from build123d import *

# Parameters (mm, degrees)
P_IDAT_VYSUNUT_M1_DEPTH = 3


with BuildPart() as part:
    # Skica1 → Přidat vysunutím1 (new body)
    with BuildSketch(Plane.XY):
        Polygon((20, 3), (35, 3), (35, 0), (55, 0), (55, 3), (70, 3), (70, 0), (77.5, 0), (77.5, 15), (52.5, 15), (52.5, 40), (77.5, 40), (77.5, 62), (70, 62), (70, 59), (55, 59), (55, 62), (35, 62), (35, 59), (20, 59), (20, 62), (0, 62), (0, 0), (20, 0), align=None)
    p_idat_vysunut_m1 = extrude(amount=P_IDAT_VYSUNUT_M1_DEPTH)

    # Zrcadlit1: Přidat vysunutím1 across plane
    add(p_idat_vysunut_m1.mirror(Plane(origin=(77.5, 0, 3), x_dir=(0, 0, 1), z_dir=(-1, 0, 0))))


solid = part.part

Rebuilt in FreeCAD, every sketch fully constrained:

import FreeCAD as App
import Part
import Sketcher

doc = App.newDocument("Part")
body = doc.addObject("PartDesign::Body", "Body")

# Sketch on XY plane
sketch1 = doc.addObject("Sketcher::SketchObject", "Sketch")
body.addObject(sketch1)
sketch1.AttachmentSupport = (doc.XY_Plane, [""])
sketch1.MapMode = "FlatFace"
sketch1.addGeometry(Part.LineSegment(App.Vector(20, 3, 0), App.Vector(35, 3, 0)), False)
sketch1.addGeometry(Part.LineSegment(App.Vector(35, 3, 0), App.Vector(35, 0, 0)), False)
sketch1.addGeometry(Part.LineSegment(App.Vector(35, 0, 0), App.Vector(55, 0, 0)), False)
sketch1.addGeometry(Part.LineSegment(App.Vector(55, 0, 0), App.Vector(55, 3, 0)), False)
sketch1.addGeometry(Part.LineSegment(App.Vector(55, 3, 0), App.Vector(70, 3, 0)), False)
sketch1.addGeometry(Part.LineSegment(App.Vector(70, 3, 0), App.Vector(70, 0, 0)), False)
sketch1.addGeometry(Part.LineSegment(App.Vector(70, 0, 0), App.Vector(77.5, 0, 0)), False)
sketch1.addGeometry(Part.LineSegment(App.Vector(77.5, 0, 0), App.Vector(77.5, 15, 0)), False)
sketch1.addGeometry(Part.LineSegment(App.Vector(77.5, 15, 0), App.Vector(52.5, 15, 0)), False)
sketch1.addGeometry(Part.LineSegment(App.Vector(52.5, 15, 0), App.Vector(52.5, 40, 0)), False)
sketch1.addGeometry(Part.LineSegment(App.Vector(52.5, 40, 0), App.Vector(77.5, 40, 0)), False)
sketch1.addGeometry(Part.LineSegment(App.Vector(77.5, 40, 0), App.Vector(77.5, 62, 0)), False)
sketch1.addGeometry(Part.LineSegment(App.Vector(77.5, 62, 0), App.Vector(70, 62, 0)), False)
sketch1.addGeometry(Part.LineSegment(App.Vector(70, 62, 0), App.Vector(70, 59, 0)), False)
sketch1.addGeometry(Part.LineSegment(App.Vector(70, 59, 0), App.Vector(55, 59, 0)), False)
sketch1.addGeometry(Part.LineSegment(App.Vector(55, 59, 0), App.Vector(55, 62, 0)), False)
sketch1.addGeometry(Part.LineSegment(App.Vector(55, 62, 0), App.Vector(35, 62, 0)), False)
sketch1.addGeometry(Part.LineSegment(App.Vector(35, 62, 0), App.Vector(35, 59, 0)), False)
sketch1.addGeometry(Part.LineSegment(App.Vector(35, 59, 0), App.Vector(20, 59, 0)), False)
sketch1.addGeometry(Part.LineSegment(App.Vector(20, 59, 0), App.Vector(20, 62, 0)), False)
sketch1.addGeometry(Part.LineSegment(App.Vector(20, 62, 0), App.Vector(0, 62, 0)), False)
sketch1.addGeometry(Part.LineSegment(App.Vector(0, 62, 0), App.Vector(0, 0, 0)), False)
sketch1.addGeometry(Part.LineSegment(App.Vector(0, 0, 0), App.Vector(20, 0, 0)), False)
sketch1.addGeometry(Part.LineSegment(App.Vector(20, 0, 0), App.Vector(20, 3, 0)), False)
sketch1.addConstraint(Sketcher.Constraint("Coincident", 0, 2, 1, 1))
sketch1.addConstraint(Sketcher.Constraint("Coincident", 1, 2, 2, 1))
sketch1.addConstraint(Sketcher.Constraint("Coincident", 2, 2, 3, 1))
sketch1.addConstraint(Sketcher.Constraint("Coincident", 3, 2, 4, 1))
sketch1.addConstraint(Sketcher.Constraint("Coincident", 4, 2, 5, 1))
sketch1.addConstraint(Sketcher.Constraint("Coincident", 5, 2, 6, 1))
sketch1.addConstraint(Sketcher.Constraint("Coincident", 6, 2, 7, 1))
sketch1.addConstraint(Sketcher.Constraint("Coincident", 7, 2, 8, 1))
sketch1.addConstraint(Sketcher.Constraint("Coincident", 8, 2, 9, 1))
sketch1.addConstraint(Sketcher.Constraint("Coincident", 9, 2, 10, 1))
sketch1.addConstraint(Sketcher.Constraint("Coincident", 10, 2, 11, 1))
sketch1.addConstraint(Sketcher.Constraint("Coincident", 11, 2, 12, 1))
sketch1.addConstraint(Sketcher.Constraint("Coincident", 12, 2, 13, 1))
sketch1.addConstraint(Sketcher.Constraint("Coincident", 13, 2, 14, 1))
sketch1.addConstraint(Sketcher.Constraint("Coincident", 14, 2, 15, 1))
sketch1.addConstraint(Sketcher.Constraint("Coincident", 15, 2, 16, 1))
sketch1.addConstraint(Sketcher.Constraint("Coincident", 16, 2, 17, 1))
sketch1.addConstraint(Sketcher.Constraint("Coincident", 17, 2, 18, 1))
sketch1.addConstraint(Sketcher.Constraint("Coincident", 18, 2, 19, 1))
sketch1.addConstraint(Sketcher.Constraint("Coincident", 19, 2, 20, 1))
sketch1.addConstraint(Sketcher.Constraint("Coincident", 20, 2, 21, 1))
sketch1.addConstraint(Sketcher.Constraint("Coincident", 21, 2, 22, 1))
sketch1.addConstraint(Sketcher.Constraint("Coincident", 22, 2, 23, 1))
sketch1.addConstraint(Sketcher.Constraint("Coincident", 23, 2, 0, 1))
sketch1.addConstraint(Sketcher.Constraint("Horizontal", 0))
sketch1.addConstraint(Sketcher.Constraint("Vertical", 1))
sketch1.addConstraint(Sketcher.Constraint("Horizontal", 2))
sketch1.addConstraint(Sketcher.Constraint("Vertical", 3))
sketch1.addConstraint(Sketcher.Constraint("Horizontal", 4))
sketch1.addConstraint(Sketcher.Constraint("Vertical", 5))
sketch1.addConstraint(Sketcher.Constraint("Horizontal", 6))
sketch1.addConstraint(Sketcher.Constraint("Vertical", 7))
sketch1.addConstraint(Sketcher.Constraint("Horizontal", 8))
sketch1.addConstraint(Sketcher.Constraint("Vertical", 9))
sketch1.addConstraint(Sketcher.Constraint("Horizontal", 10))
sketch1.addConstraint(Sketcher.Constraint("Vertical", 11))
sketch1.addConstraint(Sketcher.Constraint("Horizontal", 12))
sketch1.addConstraint(Sketcher.Constraint("Vertical", 13))
sketch1.addConstraint(Sketcher.Constraint("Horizontal", 14))
sketch1.addConstraint(Sketcher.Constraint("Vertical", 15))
sketch1.addConstraint(Sketcher.Constraint("Horizontal", 16))
sketch1.addConstraint(Sketcher.Constraint("Vertical", 17))
sketch1.addConstraint(Sketcher.Constraint("Horizontal", 18))
sketch1.addConstraint(Sketcher.Constraint("Vertical", 19))
sketch1.addConstraint(Sketcher.Constraint("Horizontal", 20))
sketch1.addConstraint(Sketcher.Constraint("Vertical", 21))
sketch1.addConstraint(Sketcher.Constraint("Horizontal", 22))
sketch1.addConstraint(Sketcher.Constraint("Vertical", 23))
sketch1.addConstraint(Sketcher.Constraint("Coincident", 21, 2, -1, 1))
sketch1.addConstraint(Sketcher.Constraint("PointOnObject", 1, 2, -1))
sketch1.addConstraint(Sketcher.Constraint("PointOnObject", 5, 2, -1))
sketch1.addConstraint(Sketcher.Constraint("Horizontal", 0, 2, 3, 2))
sketch1.addConstraint(Sketcher.Constraint("Horizontal", 12, 2, 15, 2))
sketch1.addConstraint(Sketcher.Constraint("Horizontal", 14, 2, 17, 2))
sketch1.addConstraint(Sketcher.Constraint("Horizontal", 16, 2, 19, 2))
sketch1.addConstraint(Sketcher.Constraint("Vertical", 7, 2, 10, 2))
sketch1.addConstraint(Sketcher.Constraint("Vertical", 5, 2, 12, 2))
sketch1.addConstraint(Sketcher.Constraint("Vertical", 3, 2, 14, 2))
sketch1.addConstraint(Sketcher.Constraint("Vertical", 1, 2, 16, 2))
sketch1.addConstraint(Sketcher.Constraint("Vertical", 19, 2, 22, 2))
sketch1.addConstraint(Sketcher.Constraint("Equal", 0, 4))
sketch1.addConstraint(Sketcher.Constraint("Equal", 16, 20))
sketch1.addConstraint(Sketcher.Constraint("Equal", 18, 7))
sketch1.addConstraint(Sketcher.Constraint("Equal", 10, 9))
sketch1.addConstraint(Sketcher.Constraint("Equal", 5, 13))
sketch1.addConstraint(Sketcher.Constraint("DistanceX", 0, 1, 0, 2, 15.0))
sketch1.addConstraint(Sketcher.Constraint("DistanceX", 2, 1, 2, 2, 20.0))
sketch1.addConstraint(Sketcher.Constraint("DistanceX", 8, 2, 8, 1, 25.0))
sketch1.addConstraint(Sketcher.Constraint("DistanceY", 1, 2, 1, 1, 3.0))
sketch1.addConstraint(Sketcher.Constraint("DistanceY", 11, 1, 11, 2, 22.0))
sketch1.addConstraint(Sketcher.Constraint("DistanceX", 6, 1, 6, 2, 7.5))
pad1 = doc.addObject("PartDesign::Pad", "Pad")
body.addObject(pad1)
pad1.Profile = sketch1
pad1.Length = 3
doc.recompute()

datumplane = doc.addObject("PartDesign::Plane", "DatumPlane")
body.addObject(datumplane)
datumplane.AttachmentSupport = (doc.YZ_Plane, [""])
datumplane.MapMode = "FlatFace"
datumplane.AttachmentOffset = App.Placement(App.Vector(0, 0, 77.5), App.Rotation())
mirrored = doc.addObject("PartDesign::Mirrored", "Mirrored")
body.addObject(mirrored)
mirrored.Originals = [pad1]
mirrored.MirrorPlane = (datumplane, [""])
body.Tip = mirrored

doc.recompute()
